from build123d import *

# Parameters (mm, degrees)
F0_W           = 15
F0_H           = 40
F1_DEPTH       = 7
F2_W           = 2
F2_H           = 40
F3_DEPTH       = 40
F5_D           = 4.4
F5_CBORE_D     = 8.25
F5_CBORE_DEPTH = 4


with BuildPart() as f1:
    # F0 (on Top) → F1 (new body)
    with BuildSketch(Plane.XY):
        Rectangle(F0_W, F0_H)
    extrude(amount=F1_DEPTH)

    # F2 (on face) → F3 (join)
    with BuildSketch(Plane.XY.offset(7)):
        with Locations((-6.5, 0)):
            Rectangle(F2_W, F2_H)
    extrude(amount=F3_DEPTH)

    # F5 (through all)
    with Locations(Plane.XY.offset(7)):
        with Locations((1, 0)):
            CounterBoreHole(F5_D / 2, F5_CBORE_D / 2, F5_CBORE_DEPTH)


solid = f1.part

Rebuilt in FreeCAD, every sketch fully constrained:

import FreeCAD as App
import Part
import Sketcher

V = App.Vector

doc = App.newDocument("Part")
body = doc.addObject("PartDesign::Body", "Body")

# Sketch on XY plane
sketch1 = doc.addObject("Sketcher::SketchObject", "Sketch")
body.addObject(sketch1)
sketch1.AttachmentSupport = (doc.XY_Plane, [""])
sketch1.MapMode = "FlatFace"
sketch1.addGeometry([
    Part.LineSegment(V(-7.5, 20, 0), V(-7.5, -20, 0)),
    Part.LineSegment(V(-7.5, -20, 0), V(7.5, -20, 0)),
    Part.LineSegment(V(7.5, -20, 0), V(7.5, 20, 0)),
    Part.LineSegment(V(7.5, 20, 0), V(-7.5, 20, 0)),
], False)
sketch1.addConstraint([
    Sketcher.Constraint("Coincident", 0, 2, 1, 1),
    Sketcher.Constraint("Coincident", 1, 2, 2, 1),
    Sketcher.Constraint("Coincident", 2, 2, 3, 1),
    Sketcher.Constraint("Coincident", 3, 2, 0, 1),
    Sketcher.Constraint("Vertical", 0),
    Sketcher.Constraint("Horizontal", 1),
    Sketcher.Constraint("Vertical", 2),
    Sketcher.Constraint("Horizontal", 3),
    Sketcher.Constraint("Symmetric", 0, 2, 2, 2, -1, 1),
    Sketcher.Constraint("DistanceX", 1, 1, 1, 2, 15.0),
    Sketcher.Constraint("DistanceY", 0, 2, 0, 1, 40.0),
])
pad1 = doc.addObject("PartDesign::Pad", "Pad")
body.addObject(pad1)
pad1.Profile = sketch1
pad1.Length = 7

# Sketch on XY plane
sketch2 = doc.addObject("Sketcher::SketchObject", "Sketch001")
body.addObject(sketch2)
sketch2.AttachmentSupport = (doc.XY_Plane, [""])
sketch2.MapMode = "FlatFace"
sketch2.AttachmentOffset = App.Placement(V(0, 0, 7), App.Rotation())
sketch2.addGeometry([
    Part.LineSegment(V(-7.5, 20, 0), V(-7.5, -20, 0)),
    Part.LineSegment(V(-7.5, -20, 0), V(-5.5, -20, 0)),
    Part.LineSegment(V(-5.5, -20, 0), V(-5.5, 20, 0)),
    Part.LineSegment(V(-5.5, 20, 0), V(-7.5, 20, 0)),
], False)
sketch2.addConstraint([
    Sketcher.Constraint("Coincident", 0, 2, 1, 1),
    Sketcher.Constraint("Coincident", 1, 2, 2, 1),
    Sketcher.Constraint("Coincident", 2, 2, 3, 1),
    Sketcher.Constraint("Coincident", 3, 2, 0, 1),
    Sketcher.Constraint("Vertical", 0),
    Sketcher.Constraint("Horizontal", 1),
    Sketcher.Constraint("Vertical", 2),
    Sketcher.Constraint("Horizontal", 3),
    Sketcher.Constraint("DistanceX", 1, 1, 1, 2, 2.0),
    Sketcher.Constraint("DistanceY", 0, 2, 0, 1, 40.0),
    Sketcher.Constraint("DistanceY", 0, 2, -1, 1, 20.0),
    Sketcher.Constraint("DistanceX", 0, 2, -1, 1, 7.5),
])
pad2 = doc.addObject("PartDesign::Pad", "Pad001")
body.addObject(pad2)
pad2.Profile = sketch2
pad2.Length = 40

# Sketch on XY plane
sketch3 = doc.addObject("Sketcher::SketchObject", "Sketch002")
body.addObject(sketch3)
sketch3.AttachmentSupport = (doc.XY_Plane, [""])
sketch3.MapMode = "FlatFace"
sketch3.AttachmentOffset = App.Placement(V(0, 0, 7), App.Rotation())
sketch3.addGeometry(Part.Circle(V(1, 0, 0), V(0, 0, 1), 2.2), False)
sketch3.addConstraint([
    Sketcher.Constraint("PointOnObject", 0, 3, -1),
    Sketcher.Constraint("Diameter", 0, 4.4),
    Sketcher.Constraint("DistanceX", -1, 1, 0, 3, 1.0),
])
doc.recompute()
hole = doc.addObject("PartDesign::Hole", "Hole")
body.addObject(hole)
hole.Profile = sketch3
hole.ThreadType = "None"
hole.Diameter = 4.4
hole.DepthType = "ThroughAll"
hole.HoleCutType = "Counterbore"
hole.HoleCutDiameter = 8.25
hole.HoleCutDepth = 4

doc.recompute()
